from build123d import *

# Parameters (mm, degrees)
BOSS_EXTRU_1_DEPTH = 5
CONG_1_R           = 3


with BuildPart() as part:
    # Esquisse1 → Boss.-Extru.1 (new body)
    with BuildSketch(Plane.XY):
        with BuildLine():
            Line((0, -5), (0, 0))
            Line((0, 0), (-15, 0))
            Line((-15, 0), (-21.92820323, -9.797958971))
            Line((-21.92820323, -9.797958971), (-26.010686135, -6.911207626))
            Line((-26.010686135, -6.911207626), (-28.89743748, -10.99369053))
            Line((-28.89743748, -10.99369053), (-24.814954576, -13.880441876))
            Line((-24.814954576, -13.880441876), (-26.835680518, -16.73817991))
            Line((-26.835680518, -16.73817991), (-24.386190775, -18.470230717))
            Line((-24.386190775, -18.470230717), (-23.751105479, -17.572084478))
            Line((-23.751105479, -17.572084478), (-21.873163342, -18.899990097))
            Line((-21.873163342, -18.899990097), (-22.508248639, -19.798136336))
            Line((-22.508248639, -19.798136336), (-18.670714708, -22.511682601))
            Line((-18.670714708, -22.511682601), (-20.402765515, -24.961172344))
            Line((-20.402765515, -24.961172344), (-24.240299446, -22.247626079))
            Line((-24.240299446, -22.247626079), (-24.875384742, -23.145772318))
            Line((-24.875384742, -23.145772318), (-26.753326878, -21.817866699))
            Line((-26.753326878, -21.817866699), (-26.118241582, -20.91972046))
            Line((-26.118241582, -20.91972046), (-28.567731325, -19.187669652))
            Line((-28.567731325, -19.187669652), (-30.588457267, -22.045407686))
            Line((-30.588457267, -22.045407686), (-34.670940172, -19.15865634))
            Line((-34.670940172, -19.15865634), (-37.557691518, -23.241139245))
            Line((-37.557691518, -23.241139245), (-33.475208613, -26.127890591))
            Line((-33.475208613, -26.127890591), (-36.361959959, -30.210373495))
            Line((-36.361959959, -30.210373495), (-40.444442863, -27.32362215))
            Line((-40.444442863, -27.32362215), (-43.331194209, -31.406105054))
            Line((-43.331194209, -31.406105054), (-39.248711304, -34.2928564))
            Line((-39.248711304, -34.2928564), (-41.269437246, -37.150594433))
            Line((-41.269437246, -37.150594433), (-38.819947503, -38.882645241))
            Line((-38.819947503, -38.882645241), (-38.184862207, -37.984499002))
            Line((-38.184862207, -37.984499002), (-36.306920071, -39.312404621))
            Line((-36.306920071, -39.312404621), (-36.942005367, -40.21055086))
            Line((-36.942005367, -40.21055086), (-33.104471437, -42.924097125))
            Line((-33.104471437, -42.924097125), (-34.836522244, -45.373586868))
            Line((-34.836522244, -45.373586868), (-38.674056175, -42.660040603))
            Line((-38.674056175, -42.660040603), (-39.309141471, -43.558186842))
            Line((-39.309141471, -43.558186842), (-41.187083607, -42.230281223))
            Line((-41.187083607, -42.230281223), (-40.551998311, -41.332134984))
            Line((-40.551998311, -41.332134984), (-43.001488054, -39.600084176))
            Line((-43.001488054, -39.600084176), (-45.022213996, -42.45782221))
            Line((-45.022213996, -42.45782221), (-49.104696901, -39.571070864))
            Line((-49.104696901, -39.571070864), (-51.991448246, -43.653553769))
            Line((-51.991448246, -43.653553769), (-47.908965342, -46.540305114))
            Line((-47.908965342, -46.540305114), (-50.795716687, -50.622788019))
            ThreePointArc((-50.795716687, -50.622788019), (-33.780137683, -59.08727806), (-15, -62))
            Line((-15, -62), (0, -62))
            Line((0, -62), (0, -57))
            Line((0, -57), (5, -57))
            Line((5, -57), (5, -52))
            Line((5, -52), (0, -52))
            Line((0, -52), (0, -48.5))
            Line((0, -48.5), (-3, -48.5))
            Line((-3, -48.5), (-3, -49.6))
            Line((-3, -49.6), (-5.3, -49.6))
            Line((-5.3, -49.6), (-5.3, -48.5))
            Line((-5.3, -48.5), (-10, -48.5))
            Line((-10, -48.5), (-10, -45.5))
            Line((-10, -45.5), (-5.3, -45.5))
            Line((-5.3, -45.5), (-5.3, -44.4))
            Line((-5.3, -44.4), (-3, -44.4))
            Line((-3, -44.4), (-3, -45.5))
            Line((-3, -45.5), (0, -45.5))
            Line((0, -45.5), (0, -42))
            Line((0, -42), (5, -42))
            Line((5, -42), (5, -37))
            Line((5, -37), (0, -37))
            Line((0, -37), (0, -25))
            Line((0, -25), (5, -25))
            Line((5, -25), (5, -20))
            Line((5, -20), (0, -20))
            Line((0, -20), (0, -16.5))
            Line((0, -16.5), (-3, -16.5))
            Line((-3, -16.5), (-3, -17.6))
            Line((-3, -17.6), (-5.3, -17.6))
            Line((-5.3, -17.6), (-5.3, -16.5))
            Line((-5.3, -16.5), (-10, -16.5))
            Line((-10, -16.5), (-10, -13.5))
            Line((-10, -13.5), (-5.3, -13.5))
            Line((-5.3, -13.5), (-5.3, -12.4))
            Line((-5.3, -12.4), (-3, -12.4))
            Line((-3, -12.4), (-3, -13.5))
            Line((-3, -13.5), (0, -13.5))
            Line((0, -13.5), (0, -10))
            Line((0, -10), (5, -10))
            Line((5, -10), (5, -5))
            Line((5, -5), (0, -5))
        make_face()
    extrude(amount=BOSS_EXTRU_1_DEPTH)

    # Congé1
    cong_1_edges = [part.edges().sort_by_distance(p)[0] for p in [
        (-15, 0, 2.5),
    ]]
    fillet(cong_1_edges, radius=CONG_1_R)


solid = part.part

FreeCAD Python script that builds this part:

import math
import FreeCAD as App
import Part
import Sketcher

V = App.Vector
Q = App.Units.Quantity


def edges_at(feature, points):
    """Names of the edges that pass closest to the given points."""
    edges = feature.Shape.Edges
    near = lambda p: min(range(len(edges)), key=lambda i: edges[i].distToShape(Part.Vertex(*p))[0])
    return sorted({f"Edge{near(p) + 1}" for p in points})

doc = App.newDocument("Part")
params = doc.addObject("Spreadsheet::Sheet", "Params")
for row, (alias, value) in enumerate([
    ("sketch1_radius", "62 mm"),
    ("sketch1_width", "15 mm"),
    ("sketch1_width2", "5 mm"),
    ("sketch1_width3", "3 mm"),
    ("sketch1_height", "12 mm"),
    ("pad1_length", "5 mm"),
    ("fillet_radius", "3 mm"),
], start=1):
    params.set(f"A{row}", alias)
    params.set(f"B{row}", "=" + value)
    params.setAlias(f"B{row}", alias)

body = doc.addObject("PartDesign::Body", "Body")

sketch1 = body.newObject("Sketcher::SketchObject", "Sketch")
sketch1.AttachmentSupport = (doc.getObject("XY_Plane"), [""])
sketch1.MapMode = "FlatFace"
sketch1.addGeometry([
    Part.LineSegment(V(0, -5, 0), V(0, 0, 0)),
    Part.LineSegment(V(0, 0, 0), V(-15, 0, 0)),
    Part.LineSegment(V(-15, 0, 0), V(-21.9, -9.8, 0)),
    Part.LineSegment(V(-21.9, -9.8, 0), V(-26, -6.9, 0)),
    Part.LineSegment(V(-26, -6.9, 0), V(-28.9, -11, 0)),
    Part.LineSegment(V(-28.9, -11, 0), V(-24.8, -13.9, 0)),
    Part.LineSegment(V(-24.8, -13.9, 0), V(-26.8, -16.7, 0)),
    Part.LineSegment(V(-26.8, -16.7, 0), V(-24.4, -18.5, 0)),
    Part.LineSegment(V(-24.4, -18.5, 0), V(-23.8, -17.6, 0)),
    Part.LineSegment(V(-23.8, -17.6, 0), V(-21.9, -18.9, 0)),
    Part.LineSegment(V(-21.9, -18.9, 0), V(-22.5, -19.8, 0)),
    Part.LineSegment(V(-22.5, -19.8, 0), V(-18.7, -22.5, 0)),
    Part.LineSegment(V(-18.7, -22.5, 0), V(-20.4, -25, 0)),
    Part.LineSegment(V(-20.4, -25, 0), V(-24.2, -22.2, 0)),
    Part.LineSegment(V(-24.2, -22.2, 0), V(-24.9, -23.1, 0)),
    Part.LineSegment(V(-24.9, -23.1, 0), V(-26.8, -21.8, 0)),
    Part.LineSegment(V(-26.8, -21.8, 0), V(-26.1, -20.9, 0)),
    Part.LineSegment(V(-26.1, -20.9, 0), V(-28.6, -19.2, 0)),
    Part.LineSegment(V(-28.6, -19.2, 0), V(-30.6, -22, 0)),
    Part.LineSegment(V(-30.6, -22, 0), V(-34.7, -19.2, 0)),
    Part.LineSegment(V(-34.7, -19.2, 0), V(-37.6, -23.2, 0)),
    Part.LineSegment(V(-37.6, -23.2, 0), V(-33.5, -26.1, 0)),
    Part.LineSegment(V(-33.5, -26.1, 0), V(-36.4, -30.2, 0)),
    Part.LineSegment(V(-36.4, -30.2, 0), V(-40.4, -27.3, 0)),
    Part.LineSegment(V(-40.4, -27.3, 0), V(-43.3, -31.4, 0)),
    Part.LineSegment(V(-43.3, -31.4, 0), V(-39.2, -34.3, 0)),
    Part.LineSegment(V(-39.2, -34.3, 0), V(-41.3, -37.2, 0)),
    Part.LineSegment(V(-41.3, -37.2, 0), V(-38.8, -38.9, 0)),
    Part.LineSegment(V(-38.8, -38.9, 0), V(-38.2, -38, 0)),
    Part.LineSegment(V(-38.2, -38, 0), V(-36.3, -39.3, 0)),
    Part.LineSegment(V(-36.3, -39.3, 0), V(-36.9, -40.2, 0)),
    Part.LineSegment(V(-36.9, -40.2, 0), V(-33.1, -42.9, 0)),
    Part.LineSegment(V(-33.1, -42.9, 0), V(-34.8, -45.4, 0)),
    Part.LineSegment(V(-34.8, -45.4, 0), V(-38.7, -42.7, 0)),
    Part.LineSegment(V(-38.7, -42.7, 0), V(-39.3, -43.6, 0)),
    Part.LineSegment(V(-39.3, -43.6, 0), V(-41.2, -42.2, 0)),
    Part.LineSegment(V(-41.2, -42.2, 0), V(-40.6, -41.3, 0)),
    Part.LineSegment(V(-40.6, -41.3, 0), V(-43, -39.6, 0)),
    Part.LineSegment(V(-43, -39.6, 0), V(-45, -42.5, 0)),
    Part.LineSegment(V(-45, -42.5, 0), V(-49.1, -39.6, 0)),
    Part.LineSegment(V(-49.1, -39.6, 0), V(-52, -43.7, 0)),
    Part.LineSegment(V(-52, -43.7, 0), V(-47.9, -46.5, 0)),
    Part.LineSegment(V(-47.9, -46.5, 0), V(-50.8, -50.6, 0)),
    Part.ArcOfCircle(Part.Circle(V(-15, 0, 0), V(0, 0, 1), 62), math.radians(-125), math.radians(-90)),
    Part.LineSegment(V(-15, -62, 0), V(0, -62, 0)),
    Part.LineSegment(V(0, -62, 0), V(0, -57, 0)),
    Part.LineSegment(V(0, -57, 0), V(5, -57, 0)),
    Part.LineSegment(V(5, -57, 0), V(5, -52, 0)),
    Part.LineSegment(V(5, -52, 0), V(0, -52, 0)),
    Part.LineSegment(V(0, -52, 0), V(0, -48.5, 0)),
    Part.LineSegment(V(0, -48.5, 0), V(-3, -48.5, 0)),
    Part.LineSegment(V(-3, -48.5, 0), V(-3, -49.6, 0)),
    Part.LineSegment(V(-3, -49.6, 0), V(-5.3, -49.6, 0)),
    Part.LineSegment(V(-5.3, -49.6, 0), V(-5.3, -48.5, 0)),
    Part.LineSegment(V(-5.3, -48.5, 0), V(-10, -48.5, 0)),
    Part.LineSegment(V(-10, -48.5, 0), V(-10, -45.5, 0)),
    Part.LineSegment(V(-10, -45.5, 0), V(-5.3, -45.5, 0)),
    Part.LineSegment(V(-5.3, -45.5, 0), V(-5.3, -44.4, 0)),
    Part.LineSegment(V(-5.3, -44.4, 0), V(-3, -44.4, 0)),
    Part.LineSegment(V(-3, -44.4, 0), V(-3, -45.5, 0)),
    Part.LineSegment(V(-3, -45.5, 0), V(0, -45.5, 0)),
    Part.LineSegment(V(0, -45.5, 0), V(0, -42, 0)),
    Part.LineSegment(V(0, -42, 0), V(5, -42, 0)),
    Part.LineSegment(V(5, -42, 0), V(5, -37, 0)),
    Part.LineSegment(V(5, -37, 0), V(0, -37, 0)),
    Part.LineSegment(V(0, -37, 0), V(0, -25, 0)),
    Part.LineSegment(V(0, -25, 0), V(5, -25, 0)),
    Part.LineSegment(V(5, -25, 0), V(5, -20, 0)),
    Part.LineSegment(V(5, -20, 0), V(0, -20, 0)),
    Part.LineSegment(V(0, -20, 0), V(0, -16.5, 0)),
    Part.LineSegment(V(0, -16.5, 0), V(-3, -16.5, 0)),
    Part.LineSegment(V(-3, -16.5, 0), V(-3, -17.6, 0)),
    Part.LineSegment(V(-3, -17.6, 0), V(-5.3, -17.6, 0)),
    Part.LineSegment(V(-5.3, -17.6, 0), V(-5.3, -16.5, 0)),
    Part.LineSegment(V(-5.3, -16.5, 0), V(-10, -16.5, 0)),
    Part.LineSegment(V(-10, -16.5, 0), V(-10, -13.5, 0)),
    Part.LineSegment(V(-10, -13.5, 0), V(-5.3, -13.5, 0)),
    Part.LineSegment(V(-5.3, -13.5, 0), V(-5.3, -12.4, 0)),
    Part.LineSegment(V(-5.3, -12.4, 0), V(-3, -12.4, 0)),
    Part.LineSegment(V(-3, -12.4, 0), V(-3, -13.5, 0)),
    Part.LineSegment(V(-3, -13.5, 0), V(0, -13.5, 0)),
    Part.LineSegment(V(0, -13.5, 0), V(0, -10, 0)),
    Part.LineSegment(V(0, -10, 0), V(5, -10, 0)),
    Part.LineSegment(V(5, -10, 0), V(5, -5, 0)),
    Part.LineSegment(V(5, -5, 0), V(0, -5, 0)),
], False)
sketch1.addConstraint([
    Sketcher.Constraint("Coincident", 0, 2, 1, 1),
    Sketcher.Constraint("Coincident", 1, 2, 2, 1),
    Sketcher.Constraint("Coincident", 2, 2, 3, 1),
    Sketcher.Constraint("Coincident", 3, 2, 4, 1),
    Sketcher.Constraint("Coincident", 4, 2, 5, 1),
    Sketcher.Constraint("Coincident", 5, 2, 6, 1),
    Sketcher.Constraint("Coincident", 6, 2, 7, 1),
    Sketcher.Constraint("Coincident", 7, 2, 8, 1),
    Sketcher.Constraint("Coincident", 8, 2, 9, 1),
    Sketcher.Constraint("Coincident", 9, 2, 10, 1),
    Sketcher.Constraint("Coincident", 10, 2, 11, 1),
    Sketcher.Constraint("Coincident", 11, 2, 12, 1),
    Sketcher.Constraint("Coincident", 12, 2, 13, 1),
    Sketcher.Constraint("Coincident", 13, 2, 14, 1),
    Sketcher.Constraint("Coincident", 14, 2, 15, 1),
    Sketcher.Constraint("Coincident", 15, 2, 16, 1),
    Sketcher.Constraint("Coincident", 16, 2, 17, 1),
    Sketcher.Constraint("Coincident", 17, 2, 18, 1),
    Sketcher.Constraint("Coincident", 18, 2, 19, 1),
    Sketcher.Constraint("Coincident", 19, 2, 20, 1),
    Sketcher.Constraint("Coincident", 20, 2, 21, 1),
    Sketcher.Constraint("Coincident", 21, 2, 22, 1),
    Sketcher.Constraint("Coincident", 22, 2, 23, 1),
    Sketcher.Constraint("Coincident", 23, 2, 24, 1),
    Sketcher.Constraint("Coincident", 24, 2, 25, 1),
    Sketcher.Constraint("Coincident", 25, 2, 26, 1),
    Sketcher.Constraint("Coincident", 26, 2, 27, 1),
    Sketcher.Constraint("Coincident", 27, 2, 28, 1),
    Sketcher.Constraint("Coincident", 28, 2, 29, 1),
    Sketcher.Constraint("Coincident", 29, 2, 30, 1),
    Sketcher.Constraint("Coincident", 30, 2, 31, 1),
    Sketcher.Constraint("Coincident", 31, 2, 32, 1),
    Sketcher.Constraint("Coincident", 32, 2, 33, 1),
    Sketcher.Constraint("Coincident", 33, 2, 34, 1),
    Sketcher.Constraint("Coincident", 34, 2, 35, 1),
    Sketcher.Constraint("Coincident", 35, 2, 36, 1),
    Sketcher.Constraint("Coincident", 36, 2, 37, 1),
    Sketcher.Constraint("Coincident", 37, 2, 38, 1),
    Sketcher.Constraint("Coincident", 38, 2, 39, 1),
    Sketcher.Constraint("Coincident", 39, 2, 40, 1),
    Sketcher.Constraint("Coincident", 40, 2, 41, 1),
    Sketcher.Constraint("Coincident", 41, 2, 42, 1),
    Sketcher.Constraint("Coincident", 42, 2, 43, 1),
    Sketcher.Constraint("Tangent", 43, 2, 44, 1),
    Sketcher.Constraint("Coincident", 44, 2, 45, 1),
    Sketcher.Constraint("Coincident", 45, 2, 46, 1),
    Sketcher.Constraint("Coincident", 46, 2, 47, 1),
    Sketcher.Constraint("Coincident", 47, 2, 48, 1),
    Sketcher.Constraint("Coincident", 48, 2, 49, 1),
    Sketcher.Constraint("Coincident", 49, 2, 50, 1),
    Sketcher.Constraint("Coincident", 50, 2, 51, 1),
    Sketcher.Constraint("Coincident", 51, 2, 52, 1),
    Sketcher.Constraint("Coincident", 52, 2, 53, 1),
    Sketcher.Constraint("Coincident", 53, 2, 54, 1),
    Sketcher.Constraint("Coincident", 54, 2, 55, 1),
    Sketcher.Constraint("Coincident", 55, 2, 56, 1),
    Sketcher.Constraint("Coincident", 56, 2, 57, 1),
    Sketcher.Constraint("Coincident", 57, 2, 58, 1),
    Sketcher.Constraint("Coincident", 58, 2, 59, 1),
    Sketcher.Constraint("Coincident", 59, 2, 60, 1),
    Sketcher.Constraint("Coincident", 60, 2, 61, 1),
    Sketcher.Constraint("Coincident", 61, 2, 62, 1),
    Sketcher.Constraint("Coincident", 62, 2, 63, 1),
    Sketcher.Constraint("Coincident", 63, 2, 64, 1),
    Sketcher.Constraint("Coincident", 64, 2, 65, 1),
    Sketcher.Constraint("Coincident", 65, 2, 66, 1),
    Sketcher.Constraint("Coincident", 66, 2, 67, 1),
    Sketcher.Constraint("Coincident", 67, 2, 68, 1),
    Sketcher.Constraint("Coincident", 68, 2, 69, 1),
    Sketcher.Constraint("Coincident", 69, 2, 70, 1),
    Sketcher.Constraint("Coincident", 70, 2, 71, 1),
    Sketcher.Constraint("Coincident", 71, 2, 72, 1),
    Sketcher.Constraint("Coincident", 72, 2, 73, 1),
    Sketcher.Constraint("Coincident", 73, 2, 74, 1),
    Sketcher.Constraint("Coincident", 74, 2, 75, 1),
    Sketcher.Constraint("Coincident", 75, 2, 76, 1),
    Sketcher.Constraint("Coincident", 76, 2, 77, 1),
    Sketcher.Constraint("Coincident", 77, 2, 78, 1),
    Sketcher.Constraint("Coincident", 78, 2, 79, 1),
    Sketcher.Constraint("Coincident", 79, 2, 80, 1),
    Sketcher.Constraint("Coincident", 80, 2, 81, 1),
    Sketcher.Constraint("Coincident", 81, 2, 82, 1),
    Sketcher.Constraint("Coincident", 82, 2, 83, 1),
    Sketcher.Constraint("Coincident", 83, 2, 84, 1),
    Sketcher.Constraint("Coincident", 84, 2, 0, 1),
    Sketcher.Constraint("Vertical", 0),
    Sketcher.Constraint("Horizontal", 1),
    Sketcher.Constraint("Horizontal", 44),
    Sketcher.Constraint("Vertical", 45),
    Sketcher.Constraint("Horizontal", 46),
    Sketcher.Constraint("Vertical", 47),
    Sketcher.Constraint("Horizontal", 48),
    Sketcher.Constraint("Vertical", 49),
    Sketcher.Constraint("Horizontal", 50),
    Sketcher.Constraint("Vertical", 51),
    Sketcher.Constraint("Horizontal", 52),
    Sketcher.Constraint("Vertical", 53),
    Sketcher.Constraint("Horizontal", 54),
    Sketcher.Constraint("Vertical", 55),
    Sketcher.Constraint("Horizontal", 56),
    Sketcher.Constraint("Vertical", 57),
    Sketcher.Constraint("Horizontal", 58),
    Sketcher.Constraint("Vertical", 59),
    Sketcher.Constraint("Horizontal", 60),
    Sketcher.Constraint("Vertical", 61),
    Sketcher.Constraint("Horizontal", 62),
    Sketcher.Constraint("Vertical", 63),
    Sketcher.Constraint("Horizontal", 64),
    Sketcher.Constraint("Vertical", 65),
    Sketcher.Constraint("Horizontal", 66),
    Sketcher.Constraint("Vertical", 67),
    Sketcher.Constraint("Horizontal", 68),
    Sketcher.Constraint("Vertical", 69),
    Sketcher.Constraint("Horizontal", 70),
    Sketcher.Constraint("Vertical", 71),
    Sketcher.Constraint("Horizontal", 72),
    Sketcher.Constraint("Vertical", 73),
    Sketcher.Constraint("Horizontal", 74),
    Sketcher.Constraint("Vertical", 75),
    Sketcher.Constraint("Horizontal", 76),
    Sketcher.Constraint("Vertical", 77),
    Sketcher.Constraint("Horizontal", 78),
    Sketcher.Constraint("Vertical", 79),
    Sketcher.Constraint("Horizontal", 80),
    Sketcher.Constraint("Vertical", 81),
    Sketcher.Constraint("Horizontal", 82),
    Sketcher.Constraint("Vertical", 83),
    Sketcher.Constraint("Horizontal", 84),
    Sketcher.Constraint("Coincident", 0, 2, -1, 1),
    Sketcher.Constraint("Coincident", 1, 2, 43, 3),
    Sketcher.Constraint("PointOnObject", 44, 2, -2),
    Sketcher.Constraint("PointOnObject", 48, 2, -2),
    Sketcher.Constraint("PointOnObject", 60, 2, -2),
    Sketcher.Constraint("PointOnObject", 64, 2, -2),
    Sketcher.Constraint("PointOnObject", 68, 2, -2),
    Sketcher.Constraint("PointOnObject", 80, 2, -2),
    Sketcher.Constraint("Perpendicular", 2, 3),
    Sketcher.Constraint("Perpendicular", 3, 4),
    Sketcher.Constraint("Perpendicular", 4, 5),
    Sketcher.Constraint("Perpendicular", 5, 6),
    Sketcher.Constraint("Perpendicular", 6, 7),
    Sketcher.Constraint("Perpendicular", 7, 8),
    Sketcher.Constraint("Perpendicular", 8, 9),
    Sketcher.Constraint("Perpendicular", 9, 10),
    Sketcher.Constraint("Perpendicular", 10, 11),
    Sketcher.Constraint("Perpendicular", 11, 12),
    Sketcher.Constraint("Perpendicular", 12, 13),
    Sketcher.Constraint("Perpendicular", 13, 14),
    Sketcher.Constraint("Perpendicular", 14, 15),
    Sketcher.Constraint("Perpendicular", 15, 16),
    Sketcher.Constraint("Perpendicular", 16, 17),
    Sketcher.Constraint("Perpendicular", 17, 18),
    Sketcher.Constraint("Perpendicular", 18, 19),
    Sketcher.Constraint("Perpendicular", 19, 20),
    Sketcher.Constraint("Perpendicular", 20, 21),
    Sketcher.Constraint("Perpendicular", 21, 22),
    Sketcher.Constraint("Perpendicular", 22, 23),
    Sketcher.Constraint("Perpendicular", 23, 24),
    Sketcher.Constraint("Perpendicular", 24, 25),
    Sketcher.Constraint("Perpendicular", 25, 26),
    Sketcher.Constraint("Perpendicular", 26, 27),
    Sketcher.Constraint("Perpendicular", 27, 28),
    Sketcher.Constraint("Perpendicular", 28, 29),
    Sketcher.Constraint("Perpendicular", 29, 30),
    Sketcher.Constraint("Perpendicular", 30, 31),
    Sketcher.Constraint("Perpendicular", 31, 32),
    Sketcher.Constraint("Perpendicular", 32, 33),
    Sketcher.Constraint("Perpendicular", 33, 34),
    Sketcher.Constraint("Perpendicular", 34, 35),
    Sketcher.Constraint("Perpendicular", 35, 36),
    Sketcher.Constraint("Perpendicular", 36, 37),
    Sketcher.Constraint("Perpendicular", 37, 38),
    Sketcher.Constraint("Perpendicular", 38, 39),
    Sketcher.Constraint("Perpendicular", 39, 40),
    Sketcher.Constraint("Perpendicular", 40, 41),
    Sketcher.Constraint("Perpendicular", 41, 42),
    Sketcher.Constraint("Horizontal", 50, 2, 53, 2),
    Sketcher.Constraint("Horizontal", 56, 2, 59, 2),
    Sketcher.Constraint("Horizontal", 70, 2, 73, 2),
    Sketcher.Constraint("Horizontal", 76, 2, 79, 2),
    Sketcher.Constraint("Vertical", 53, 2, 56, 2),
    Sketcher.Constraint("Vertical", 51, 2, 58, 2),
    Sketcher.Constraint("Vertical", 47, 2, 62, 2),
    Sketcher.Constraint("Vertical", 63, 2, 66, 2),
    Sketcher.Constraint("Vertical", 59, 2, 70, 2),
    Sketcher.Constraint("Vertical", 57, 2, 72, 2),
    Sketcher.Constraint("Vertical", 55, 2, 74, 2),
    Sketcher.Constraint("Vertical", 73, 2, 76, 2),
    Sketcher.Constraint("Vertical", 71, 2, 78, 2),
    Sketcher.Constraint("Vertical", 67, 2, 82, 2),
    Sketcher.Constraint("Equal", 84, 0),
    Sketcher.Constraint("Equal", 0, 45),
    Sketcher.Constraint("Equal", 45, 47),
    Sketcher.Constraint("Equal", 80, 55),
    Sketcher.Constraint("Equal", 53, 57),
    Sketcher.Constraint("Equal", 49, 61),
    Sketcher.Constraint("Equal", 47, 63),
    Sketcher.Constraint("Equal", 63, 67),
    Sketcher.Constraint("Equal", 61, 69),
    Sketcher.Constraint("Equal", 59, 71),
    Sketcher.Constraint("Equal", 55, 75),
    Sketcher.Constraint("Equal", 73, 77),
    Sketcher.Constraint("Equal", 69, 81),
    Sketcher.Constraint("Equal", 67, 83),
    Sketcher.Constraint("Equal", 3, 4),
    Sketcher.Constraint("Equal", 4, 5),
    Sketcher.Constraint("Equal", 8, 10),
    Sketcher.Constraint("Equal", 7, 12),
    Sketcher.Constraint("Equal", 11, 13),
    Sketcher.Constraint("Equal", 10, 14),
    Sketcher.Constraint("Equal", 9, 15),
    Sketcher.Constraint("Equal", 14, 16),
    Sketcher.Constraint("Equal", 12, 17),
    Sketcher.Constraint("Equal", 6, 18),
    Sketcher.Constraint("Equal", 5, 19),
    Sketcher.Constraint("Equal", 19, 20),
    Sketcher.Constraint("Equal", 20, 21),
    Sketcher.Constraint("Equal", 21, 22),
    Sketcher.Constraint("Equal", 22, 23),
    Sketcher.Constraint("Equal", 23, 24),
    Sketcher.Constraint("Equal", 24, 25),
    Sketcher.Constraint("Equal", 18, 26),
    Sketcher.Constraint("Equal", 17, 27),
    Sketcher.Constraint("Equal", 16, 28),
    Sketcher.Constraint("Equal", 15, 29),
    Sketcher.Constraint("Equal", 28, 30),
    Sketcher.Constraint("Equal", 13, 31),
    Sketcher.Constraint("Equal", 27, 32),
    Sketcher.Constraint("Equal", 31, 33),
    Sketcher.Constraint("Equal", 30, 34),
    Sketcher.Constraint("Equal", 29, 35),
    Sketcher.Constraint("Equal", 34, 36),
    Sketcher.Constraint("Equal", 32, 37),
    Sketcher.Constraint("Equal", 26, 38),
    Sketcher.Constraint("Equal", 25, 39),
    Sketcher.Constraint("Equal", 39, 40),
    Sketcher.Constraint("Equal", 40, 41),
    Sketcher.Constraint("Equal", 41, 42),
    Sketcher.Constraint("Radius", 43, Q("62 mm")),
    Sketcher.Constraint("DistanceX", 1, 2, 1, 1, Q("15 mm")),
    Sketcher.Constraint("DistanceX", 46, 1, 46, 2, Q("5 mm")),
    Sketcher.Constraint("DistanceX", 50, 2, 50, 1, Q("3 mm")),
    Sketcher.Constraint("DistanceY", 65, 1, 65, 2, Q("12 mm")),
    Sketcher.Constraint("Distance", 2, Q("12 mm")),
    Sketcher.Constraint("Distance", 3, Q("5 mm")),
    Sketcher.Constraint("Distance", 7, Q("3 mm")),
    Sketcher.Constraint("DistanceX", 52, 2, 52, 1, Q("2.3 mm")),
    Sketcher.Constraint("DistanceX", 54, 2, 54, 1, Q("4.7 mm")),
    Sketcher.Constraint("DistanceY", 51, 2, 51, 1, Q("1.1 mm")),
    Sketcher.Constraint("Distance", 8, Q("1.1 mm")),
    Sketcher.Constraint("Distance", 9, Q("2.3 mm")),
    Sketcher.Constraint("Distance", 11, Q("4.7 mm")),
    Sketcher.Constraint("DistanceX", 36, 2, -1, 1, Q("40.551998 mm")),
])
sketch1.setExpression("Constraints[238]", "Params.sketch1_radius")
sketch1.setExpression("Constraints[239]", "Params.sketch1_width")
sketch1.setExpression("Constraints[240]", "Params.sketch1_width2")
sketch1.setExpression("Constraints[241]", "Params.sketch1_width3")
sketch1.setExpression("Constraints[242]", "Params.sketch1_height")
pad1 = body.newObject("PartDesign::Pad", "Pad")
pad1.Profile = sketch1
pad1.setExpression("Length", "Params.pad1_length")
doc.recompute()

fillet = body.newObject("PartDesign::Fillet", "Fillet")
fillet.Base = (pad1, edges_at(pad1, [(-15, 0, 2.5)]))
fillet.setExpression("Radius", "Params.fillet_radius")

doc.recompute()
